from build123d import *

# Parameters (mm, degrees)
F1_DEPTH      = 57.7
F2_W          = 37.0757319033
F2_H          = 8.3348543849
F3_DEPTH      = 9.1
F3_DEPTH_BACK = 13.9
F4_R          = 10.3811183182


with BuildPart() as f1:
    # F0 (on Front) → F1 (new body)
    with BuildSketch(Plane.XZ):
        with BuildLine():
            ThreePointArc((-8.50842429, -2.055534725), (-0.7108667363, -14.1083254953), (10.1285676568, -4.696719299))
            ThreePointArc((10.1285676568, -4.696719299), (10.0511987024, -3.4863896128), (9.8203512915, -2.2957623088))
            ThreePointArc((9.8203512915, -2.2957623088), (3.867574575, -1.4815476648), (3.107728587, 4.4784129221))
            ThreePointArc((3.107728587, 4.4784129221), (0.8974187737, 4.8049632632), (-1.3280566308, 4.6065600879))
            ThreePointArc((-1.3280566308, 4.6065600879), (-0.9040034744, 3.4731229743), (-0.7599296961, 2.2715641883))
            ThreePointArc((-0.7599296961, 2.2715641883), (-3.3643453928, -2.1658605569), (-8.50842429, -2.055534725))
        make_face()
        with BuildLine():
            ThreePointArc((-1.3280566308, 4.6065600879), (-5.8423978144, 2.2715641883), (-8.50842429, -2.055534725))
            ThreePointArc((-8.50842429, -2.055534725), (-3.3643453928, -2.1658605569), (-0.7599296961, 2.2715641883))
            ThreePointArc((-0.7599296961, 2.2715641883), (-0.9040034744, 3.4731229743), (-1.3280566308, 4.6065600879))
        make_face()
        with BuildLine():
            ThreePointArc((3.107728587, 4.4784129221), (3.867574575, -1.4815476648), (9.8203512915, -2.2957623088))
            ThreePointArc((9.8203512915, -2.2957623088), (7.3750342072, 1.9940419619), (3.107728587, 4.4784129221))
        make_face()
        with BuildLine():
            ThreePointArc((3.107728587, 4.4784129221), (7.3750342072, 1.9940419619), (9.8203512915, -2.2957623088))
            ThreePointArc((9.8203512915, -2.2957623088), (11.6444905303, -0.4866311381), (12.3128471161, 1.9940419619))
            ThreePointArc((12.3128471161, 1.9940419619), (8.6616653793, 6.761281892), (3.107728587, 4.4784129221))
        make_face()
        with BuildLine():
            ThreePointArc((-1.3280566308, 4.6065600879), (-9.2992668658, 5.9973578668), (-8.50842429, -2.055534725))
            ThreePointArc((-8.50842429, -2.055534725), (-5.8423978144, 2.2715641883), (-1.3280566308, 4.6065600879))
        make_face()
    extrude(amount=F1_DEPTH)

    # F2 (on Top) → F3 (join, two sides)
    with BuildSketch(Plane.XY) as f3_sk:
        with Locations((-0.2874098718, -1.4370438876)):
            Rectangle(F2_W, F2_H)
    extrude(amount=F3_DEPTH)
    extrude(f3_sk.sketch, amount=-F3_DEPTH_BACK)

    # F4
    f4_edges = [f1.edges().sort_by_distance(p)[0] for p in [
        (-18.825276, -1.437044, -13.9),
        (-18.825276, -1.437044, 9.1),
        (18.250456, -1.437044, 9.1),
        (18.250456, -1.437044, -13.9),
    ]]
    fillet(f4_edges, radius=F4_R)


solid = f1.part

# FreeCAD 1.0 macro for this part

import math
import FreeCAD as App
import Part
import Sketcher
from FreeCAD import Vector


def edges_at(feature, points):
    """Names of the edges that pass closest to the given points."""
    edges = feature.Shape.Edges
    near = lambda p: min(range(len(edges)), key=lambda i: edges[i].distToShape(Part.Vertex(*p))[0])
    return sorted({f"Edge{near(p) + 1}" for p in points})


def add_polygon(sketch, points):
    """Adds a closed chain of lines whose ends are joined by coincident constraints."""
    first, n = sketch.GeometryCount, len(points)
    for a, b in zip(points, points[1:] + points[:1]):
        sketch.addGeometry(Part.LineSegment(App.Vector(*a, 0), App.Vector(*b, 0)), False)
    for i in range(n):
        sketch.addConstraint(Sketcher.Constraint("Coincident", first + i, 2, first + (i + 1) % n, 1))

doc = App.newDocument("Part")
body = doc.addObject("PartDesign::Body", "Body")

sketch1 = body.newObject("Sketcher::SketchObject", "Sketch")
sketch1.AttachmentSupport = (doc.getObject("XZ_Plane"), [""])
sketch1.MapMode = "FlatFace"
sketch1.addGeometry([
    Part.ArcOfCircle(Part.Circle(Vector(0.6, -4.7, 0), Vector(0, 0, 1), 9.5), math.radians(164), math.radians(360)),
    Part.ArcOfCircle(Part.Circle(Vector(0.6, -4.7, 0), Vector(0, 0, 1), 9.5), math.radians(0), math.radians(14.63)),
    Part.ArcOfCircle(Part.Circle(Vector(7.4, 2, 0), Vector(0, 0, 1), 4.9), math.radians(-60), math.radians(0)),
    Part.ArcOfCircle(Part.Circle(Vector(7.4, 2, 0), Vector(0, 0, 1), 4.9), math.radians(0), math.radians(150)),
    Part.ArcOfCircle(Part.Circle(Vector(0.6, -4.7, 0), Vector(0, 0, 1), 9.5), math.radians(75), math.radians(102)),
    Part.ArcOfCircle(Part.Circle(Vector(-5.8, 2.3, 0), Vector(0, 0, 1), 5.1), math.radians(27), math.radians(238)),
], False)
sketch1.addConstraint([
    Sketcher.Constraint("Tangent", 0, 2, 1, 1),
    Sketcher.Constraint("Coincident", 1, 2, 2, 1),
    Sketcher.Constraint("Tangent", 2, 2, 3, 1),
    Sketcher.Constraint("Coincident", 3, 2, 4, 1),
    Sketcher.Constraint("Coincident", 4, 2, 5, 1),
    Sketcher.Constraint("Coincident", 5, 2, 0, 1),
    Sketcher.Constraint("Coincident", 4, 3, 0, 3),
    Sketcher.Constraint("Equal", 0, 1),
    Sketcher.Constraint("Equal", 2, 3),
    Sketcher.Constraint("Equal", 1, 4),
    Sketcher.Constraint("Horizontal", 4, 3, 0, 2),
    Sketcher.Constraint("Horizontal", 3, 3, 2, 2),
    Sketcher.Constraint("Radius", 5, 5.082468),
    Sketcher.Constraint("Radius", 0, 9.505647),
    Sketcher.Constraint("Radius", 2, 4.937813),
    Sketcher.Constraint("DistanceY", 5, 2, 5, 3, 4.327099),
    Sketcher.Constraint("DistanceX", -1, 1, 0, 3, 0.622921),
    Sketcher.Constraint("DistanceY", 0, 3, -1, 1, 4.696719),
    Sketcher.Constraint("DistanceY", -1, 1, 2, 3, 1.994042),
    Sketcher.Constraint("DistanceX", -1, 1, 1, 2, 9.820351),
    Sketcher.Constraint("DistanceY", -1, 1, 4, 2, 4.60656),
])
pad1 = body.newObject("PartDesign::Pad", "Pad")
pad1.Profile = sketch1
pad1.Length = 57.7

sketch2 = body.newObject("Sketcher::SketchObject", "Sketch001")
sketch2.AttachmentSupport = (doc.getObject("XY_Plane"), [""])
sketch2.MapMode = "FlatFace"
add_polygon(sketch2, [(-19, 3), (-19, -6), (18, -6), (18, 3)])
sketch2.addConstraint([
    Sketcher.Constraint("Vertical", 0),
    Sketcher.Constraint("Horizontal", 1),
    Sketcher.Constraint("Vertical", 2),
    Sketcher.Constraint("Horizontal", 3),
    Sketcher.Constraint("DistanceX", 1, 1, 1, 2, 37.075732),
    Sketcher.Constraint("DistanceY", 0, 2, 0, 1, 8.334854),
    Sketcher.Constraint("DistanceY", 0, 2, -1, 1, 5.604471),
    Sketcher.Constraint("DistanceX", 0, 2, -1, 1, 18.825276),
])
pad2 = body.newObject("PartDesign::Pad", "Pad001")
pad2.Profile = sketch2
pad2.Type = "TwoLengths"
pad2.Length = 9.1
pad2.Length2 = 13.9
doc.recompute()

fillet = body.newObject("PartDesign::Fillet", "Fillet")
fillet.Base = (pad2, edges_at(pad2, [
    (-18.825, -1.437, -13.9),
    (-18.825, -1.437, 9.1),
    (18.25, -1.437, 9.1),
    (18.25, -1.437, -13.9),
]))
fillet.Radius = 10.381118

doc.recompute()
